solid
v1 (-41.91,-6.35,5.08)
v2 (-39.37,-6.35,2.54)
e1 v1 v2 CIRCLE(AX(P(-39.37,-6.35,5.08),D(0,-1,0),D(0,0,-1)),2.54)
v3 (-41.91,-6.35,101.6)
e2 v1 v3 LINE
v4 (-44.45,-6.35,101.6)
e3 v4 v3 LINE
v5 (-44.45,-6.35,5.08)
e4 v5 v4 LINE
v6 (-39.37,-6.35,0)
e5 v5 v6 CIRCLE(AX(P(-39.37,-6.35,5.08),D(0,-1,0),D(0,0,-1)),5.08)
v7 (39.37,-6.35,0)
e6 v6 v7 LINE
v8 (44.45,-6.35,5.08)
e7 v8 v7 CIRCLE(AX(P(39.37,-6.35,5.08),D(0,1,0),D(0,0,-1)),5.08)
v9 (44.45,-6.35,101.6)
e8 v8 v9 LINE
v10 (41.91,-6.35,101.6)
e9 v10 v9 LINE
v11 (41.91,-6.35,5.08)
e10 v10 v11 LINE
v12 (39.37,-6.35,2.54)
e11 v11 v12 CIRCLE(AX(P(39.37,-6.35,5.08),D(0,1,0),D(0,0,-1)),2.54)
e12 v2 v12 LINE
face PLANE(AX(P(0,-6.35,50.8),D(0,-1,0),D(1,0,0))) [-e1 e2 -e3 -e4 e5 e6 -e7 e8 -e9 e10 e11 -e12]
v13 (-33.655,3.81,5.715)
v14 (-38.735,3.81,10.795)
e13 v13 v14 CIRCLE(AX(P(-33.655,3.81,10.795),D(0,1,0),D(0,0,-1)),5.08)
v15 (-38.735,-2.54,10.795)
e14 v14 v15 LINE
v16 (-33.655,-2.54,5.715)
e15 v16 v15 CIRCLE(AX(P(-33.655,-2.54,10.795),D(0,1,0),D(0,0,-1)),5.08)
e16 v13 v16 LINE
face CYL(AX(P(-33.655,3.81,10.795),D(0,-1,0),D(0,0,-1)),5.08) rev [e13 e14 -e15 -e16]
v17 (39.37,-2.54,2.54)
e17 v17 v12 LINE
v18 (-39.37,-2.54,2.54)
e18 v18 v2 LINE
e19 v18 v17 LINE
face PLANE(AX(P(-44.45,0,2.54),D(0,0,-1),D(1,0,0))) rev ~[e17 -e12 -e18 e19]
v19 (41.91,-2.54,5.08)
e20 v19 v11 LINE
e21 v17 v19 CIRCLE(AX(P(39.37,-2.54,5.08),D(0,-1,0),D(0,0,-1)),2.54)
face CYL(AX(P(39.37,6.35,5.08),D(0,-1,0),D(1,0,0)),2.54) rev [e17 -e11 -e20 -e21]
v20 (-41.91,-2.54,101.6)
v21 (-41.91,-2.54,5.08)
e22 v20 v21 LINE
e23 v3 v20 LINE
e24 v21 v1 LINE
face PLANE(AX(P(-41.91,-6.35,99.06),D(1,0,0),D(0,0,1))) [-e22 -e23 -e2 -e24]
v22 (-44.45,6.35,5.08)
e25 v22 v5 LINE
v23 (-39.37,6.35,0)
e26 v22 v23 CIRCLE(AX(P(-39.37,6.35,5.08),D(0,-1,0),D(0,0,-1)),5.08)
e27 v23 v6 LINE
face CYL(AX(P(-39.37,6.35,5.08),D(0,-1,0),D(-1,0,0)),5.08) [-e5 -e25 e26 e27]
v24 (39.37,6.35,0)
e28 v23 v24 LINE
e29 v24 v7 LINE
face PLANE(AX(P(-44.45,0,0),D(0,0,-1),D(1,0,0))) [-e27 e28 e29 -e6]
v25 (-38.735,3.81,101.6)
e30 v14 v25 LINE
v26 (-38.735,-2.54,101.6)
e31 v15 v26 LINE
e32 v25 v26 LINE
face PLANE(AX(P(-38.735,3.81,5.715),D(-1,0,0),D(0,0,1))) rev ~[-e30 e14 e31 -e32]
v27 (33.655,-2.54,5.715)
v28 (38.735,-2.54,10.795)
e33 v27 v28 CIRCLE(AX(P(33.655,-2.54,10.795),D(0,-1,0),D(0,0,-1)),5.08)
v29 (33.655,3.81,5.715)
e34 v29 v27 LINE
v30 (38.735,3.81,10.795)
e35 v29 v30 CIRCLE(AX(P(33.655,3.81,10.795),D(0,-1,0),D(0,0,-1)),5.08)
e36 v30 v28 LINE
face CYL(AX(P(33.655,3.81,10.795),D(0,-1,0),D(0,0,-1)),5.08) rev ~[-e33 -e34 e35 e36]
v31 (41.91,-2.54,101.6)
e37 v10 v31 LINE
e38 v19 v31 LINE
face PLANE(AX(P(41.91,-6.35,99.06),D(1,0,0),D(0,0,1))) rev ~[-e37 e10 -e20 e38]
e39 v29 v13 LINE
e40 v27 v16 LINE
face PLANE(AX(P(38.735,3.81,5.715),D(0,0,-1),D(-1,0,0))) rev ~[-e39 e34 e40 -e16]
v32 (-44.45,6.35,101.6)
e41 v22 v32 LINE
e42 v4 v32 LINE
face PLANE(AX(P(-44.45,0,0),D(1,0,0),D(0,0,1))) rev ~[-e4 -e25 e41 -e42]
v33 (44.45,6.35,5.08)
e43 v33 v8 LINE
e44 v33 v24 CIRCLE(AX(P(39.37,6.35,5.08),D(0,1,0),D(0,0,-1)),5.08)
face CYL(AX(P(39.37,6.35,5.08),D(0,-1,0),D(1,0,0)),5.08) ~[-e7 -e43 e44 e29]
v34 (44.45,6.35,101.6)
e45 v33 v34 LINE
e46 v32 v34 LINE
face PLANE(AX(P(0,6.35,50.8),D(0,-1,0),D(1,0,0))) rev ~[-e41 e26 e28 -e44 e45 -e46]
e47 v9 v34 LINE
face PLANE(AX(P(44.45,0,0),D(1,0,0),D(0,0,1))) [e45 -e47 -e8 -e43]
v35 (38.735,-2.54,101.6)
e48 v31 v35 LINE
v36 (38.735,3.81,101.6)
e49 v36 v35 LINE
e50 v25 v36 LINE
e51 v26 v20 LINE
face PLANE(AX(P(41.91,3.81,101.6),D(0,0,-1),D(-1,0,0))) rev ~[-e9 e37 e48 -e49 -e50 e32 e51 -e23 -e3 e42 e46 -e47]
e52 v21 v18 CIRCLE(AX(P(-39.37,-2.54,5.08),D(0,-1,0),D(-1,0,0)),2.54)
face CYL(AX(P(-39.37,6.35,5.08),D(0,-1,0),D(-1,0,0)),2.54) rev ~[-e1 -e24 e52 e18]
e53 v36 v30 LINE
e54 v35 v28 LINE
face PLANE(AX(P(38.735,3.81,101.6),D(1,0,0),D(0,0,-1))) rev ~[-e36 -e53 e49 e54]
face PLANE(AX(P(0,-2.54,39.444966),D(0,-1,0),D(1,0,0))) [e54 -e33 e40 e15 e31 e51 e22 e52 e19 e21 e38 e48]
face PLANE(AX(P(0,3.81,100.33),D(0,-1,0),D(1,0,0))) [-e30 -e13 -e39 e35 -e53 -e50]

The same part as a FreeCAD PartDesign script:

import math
import FreeCAD as App
import Part
import Sketcher
Q = App.Units.Quantity


def edges_at(feature, points):
    """Names of the edges that pass closest to the given points."""
    edges = feature.Shape.Edges
    near = lambda p: min(range(len(edges)), key=lambda i: edges[i].distToShape(Part.Vertex(*p))[0])
    return sorted({f"Edge{near(p) + 1}" for p in points})


def faces_at(feature, points):
    """Names of the faces that lie closest to the given points."""
    faces = feature.Shape.Faces
    near = lambda p: min(range(len(faces)), key=lambda i: faces[i].distToShape(Part.Vertex(*p))[0])
    return sorted({f"Face{near(p) + 1}" for p in points})

doc = App.newDocument("Part")
body = doc.addObject("PartDesign::Body", "Body")

# Sketch on XZ plane
sketch1 = doc.addObject("Sketcher::SketchObject", "Sketch")
body.addObject(sketch1)
sketch1.AttachmentSupport = (doc.XZ_Plane, [""])
sketch1.MapMode = "FlatFace"
sketch1.addGeometry([
    Part.LineSegment(App.Vector(-44, 102, 0), App.Vector(-44, 0, 0)),
    Part.LineSegment(App.Vector(-44, 0, 0), App.Vector(44, 0, 0)),
    Part.LineSegment(App.Vector(44, 0, 0), App.Vector(44, 102, 0)),
    Part.LineSegment(App.Vector(44, 102, 0), App.Vector(-44, 102, 0)),
], False)
sketch1.addConstraint([
    Sketcher.Constraint("Coincident", 0, 2, 1, 1),
    Sketcher.Constraint("Coincident", 1, 2, 2, 1),
    Sketcher.Constraint("Coincident", 2, 2, 3, 1),
    Sketcher.Constraint("Coincident", 3, 2, 0, 1),
    Sketcher.Constraint("Vertical", 0),
    Sketcher.Constraint("Horizontal", 1),
    Sketcher.Constraint("Vertical", 2),
    Sketcher.Constraint("Horizontal", 3),
    Sketcher.Constraint("Symmetric", 0, 2, 1, 2, -1, 1),
    Sketcher.Constraint("DistanceY", 0, 2, 0, 1, Q("4 in")),
    Sketcher.Constraint("DistanceX", 1, 1, 1, 2, Q("3.5 in")),
])
pad1 = doc.addObject("PartDesign::Pad", "Pad")
body.addObject(pad1)
pad1.Profile = sketch1
pad1.Length = Q("0.5 in")
pad1.Midplane = True
doc.recompute()

fillet = doc.addObject("PartDesign::Fillet", "Fillet")
body.addObject(fillet)
fillet.Base = (pad1, edges_at(pad1, [(-44.45, 0, 0), (44.45, 0, 0)]))
fillet.Radius = Q("0.2 in")
doc.recompute()

thickness = doc.addObject("PartDesign::Thickness", "Thickness")
body.addObject(thickness)
thickness.Base = (fillet, faces_at(fillet, [(0, -6.35, 50.8)]))
thickness.Value = Q("0.1 in")
thickness.Reversed = True
thickness.Join = "Arc"

# Sketch on XZ plane
sketch2 = doc.addObject("Sketcher::SketchObject", "Sketch001")
body.addObject(sketch2)
sketch2.AttachmentSupport = (doc.XZ_Plane, [""])
sketch2.MapMode = "FlatFace"
sketch2.AttachmentOffset = App.Placement(App.Vector(0, 0, 0.25 * 25.4), App.Rotation())
sketch2.addGeometry([
    Part.LineSegment(App.Vector(-41.9, 101.6, 0), App.Vector(-41.9, 99.1, 0)),
    Part.LineSegment(App.Vector(-41.9, 99.1, 0), App.Vector(41.9, 99.1, 0)),
    Part.LineSegment(App.Vector(41.9, 99.1, 0), App.Vector(41.9, 101.6, 0)),
    Part.LineSegment(App.Vector(41.9, 101.6, 0), App.Vector(-41.9, 101.6, 0)),
], False)
sketch2.addConstraint([
    Sketcher.Constraint("Coincident", 0, 2, 1, 1),
    Sketcher.Constraint("Coincident", 1, 2, 2, 1),
    Sketcher.Constraint("Coincident", 2, 2, 3, 1),
    Sketcher.Constraint("Coincident", 3, 2, 0, 1),
    Sketcher.Constraint("Vertical", 0),
    Sketcher.Constraint("Horizontal", 1),
    Sketcher.Constraint("Vertical", 2),
    Sketcher.Constraint("Horizontal", 3),
    Sketcher.Constraint("DistanceX", 1, 1, 1, 2, Q("3.3 in")),
    Sketcher.Constraint("DistanceY", 0, 2, 0, 1, Q("0.1 in")),
    Sketcher.Constraint("DistanceY", -1, 1, 2, 2, Q("4 in")),
    Sketcher.Constraint("DistanceX", 0, 2, -1, 1, Q("1.65 in")),
])
pocket1 = doc.addObject("PartDesign::Pocket", "Pocket")
body.addObject(pocket1)
pocket1.Profile = sketch2
pocket1.Length = Q("0.4 in")

# Sketch on XZ plane
sketch3 = doc.addObject("Sketcher::SketchObject", "Sketch002")
body.addObject(sketch3)
sketch3.AttachmentSupport = (doc.XZ_Plane, [""])
sketch3.MapMode = "FlatFace"
sketch3.AttachmentOffset = App.Placement(App.Vector(0, 0, -0.15 * 25.4), App.Rotation())
sketch3.addGeometry([
    Part.LineSegment(App.Vector(38.7, 5.7, 0), App.Vector(-38.7, 5.7, 0)),  # 0
    Part.LineSegment(App.Vector(-38.7, 5.7, 0), App.Vector(-38.7, 101.6, 0)),  # 1
    Part.LineSegment(App.Vector(-38.7, 101.6, 0), App.Vector(-41.9, 101.6, 0)),  # 2
    Part.LineSegment(App.Vector(-41.9, 101.6, 0), App.Vector(-41.9, 5.1, 0)),  # 3
    Part.ArcOfCircle(Part.Circle(App.Vector(-39.4, 5.1, 0), App.Vector(0, 0, 1), 2.5), math.radians(180), math.radians(270)),  # 4
    Part.LineSegment(App.Vector(-39.4, 2.5, 0), App.Vector(39.4, 2.5, 0)),  # 5
    Part.ArcOfCircle(Part.Circle(App.Vector(39.4, 5.1, 0), App.Vector(0, 0, 1), 2.5), math.radians(-90), math.radians(0)),  # 6
    Part.LineSegment(App.Vector(41.9, 5.1, 0), App.Vector(41.9, 101.6, 0)),  # 7
    Part.LineSegment(App.Vector(41.9, 101.6, 0), App.Vector(38.7, 101.6, 0)),  # 8
    Part.LineSegment(App.Vector(38.7, 101.6, 0), App.Vector(38.7, 5.7, 0)),  # 9
], False)
sketch3.addConstraint([
    Sketcher.Constraint("Coincident", 0, 2, 1, 1),
    Sketcher.Constraint("Coincident", 1, 2, 2, 1),
    Sketcher.Constraint("Coincident", 2, 2, 3, 1),
    Sketcher.Constraint("Tangent", 3, 2, 4, 1),
    Sketcher.Constraint("Tangent", 4, 2, 5, 1),
    Sketcher.Constraint("Tangent", 5, 2, 6, 1),
    Sketcher.Constraint("Tangent", 6, 2, 7, 1),
    Sketcher.Constraint("Coincident", 7, 2, 8, 1),
    Sketcher.Constraint("Coincident", 8, 2, 9, 1),
    Sketcher.Constraint("Coincident", 9, 2, 0, 1),
    Sketcher.Constraint("Horizontal", 0),
    Sketcher.Constraint("Vertical", 1),
    Sketcher.Constraint("Horizontal", 2),
    Sketcher.Constraint("Vertical", 3),
    Sketcher.Constraint("Horizontal", 5),
    Sketcher.Constraint("Vertical", 7),
    Sketcher.Constraint("Horizontal", 8),
    Sketcher.Constraint("Vertical", 9),
    Sketcher.Constraint("Equal", 4, 6),
    Sketcher.Constraint("Symmetric", 2, 2, 7, 2, -2),
    Sketcher.Constraint("Equal", 2, 8),
    Sketcher.Constraint("Radius", 4, Q("0.1 in")),
    Sketcher.Constraint("DistanceX", 5, 1, 5, 2, Q("3.1 in")),
    Sketcher.Constraint("DistanceY", 3, 2, 3, 1, Q("3.8 in")),
    Sketcher.Constraint("DistanceY", -1, 1, 1, 2, Q("4 in")),
    Sketcher.Constraint("DistanceX", 0, 2, 0, 1, Q("3.05 in")),
    Sketcher.Constraint("DistanceY", 1, 1, 1, 2, Q("3.775 in")),
])
pad2 = doc.addObject("PartDesign::Pad", "Pad001")
body.addObject(pad2)
pad2.Profile = sketch3
pad2.Length = Q("0.25 in")
doc.recompute()

fillet2 = doc.addObject("PartDesign::Fillet", "Fillet001")
body.addObject(fillet2)
fillet2.Base = (pad2, edges_at(pad2, [(-38.735, 0.635, 5.715), (38.735, 0.635, 5.715)]))
fillet2.Radius = Q("0.2 in")

doc.recompute()
